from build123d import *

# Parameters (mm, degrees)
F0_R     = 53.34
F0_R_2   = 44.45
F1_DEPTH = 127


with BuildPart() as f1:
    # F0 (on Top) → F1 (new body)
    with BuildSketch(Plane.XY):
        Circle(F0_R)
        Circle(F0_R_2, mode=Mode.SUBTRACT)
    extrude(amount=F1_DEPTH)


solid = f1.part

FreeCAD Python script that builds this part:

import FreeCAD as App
import Part
import Sketcher
Q = App.Units.Quantity

doc = App.newDocument("Part")
body = doc.addObject("PartDesign::Body", "Body")

# Sketch on XY plane
sketch1 = doc.addObject("Sketcher::SketchObject", "Sketch")
body.addObject(sketch1)
sketch1.AttachmentSupport = (doc.XY_Plane, [""])
sketch1.MapMode = "FlatFace"
sketch1.addGeometry(Part.Circle(App.Vector(0, 0, 0), App.Vector(0, 0, 1), 53), False)
sketch1.addGeometry(Part.Circle(App.Vector(0, 0, 0), App.Vector(0, 0, 1), 44), False)
sketch1.addConstraint(Sketcher.Constraint("Coincident", 0, 3, -1, 1))
sketch1.addConstraint(Sketcher.Constraint("Coincident", 1, 3, -1, 1))
sketch1.addConstraint(Sketcher.Constraint("Diameter", 0, Q("4.2 in")))
sketch1.addConstraint(Sketcher.Constraint("Diameter", 1, Q("3.5 in")))
pad1 = doc.addObject("PartDesign::Pad", "Pad")
body.addObject(pad1)
pad1.Profile = sketch1
pad1.Length = Q("5 in")

doc.recompute()
